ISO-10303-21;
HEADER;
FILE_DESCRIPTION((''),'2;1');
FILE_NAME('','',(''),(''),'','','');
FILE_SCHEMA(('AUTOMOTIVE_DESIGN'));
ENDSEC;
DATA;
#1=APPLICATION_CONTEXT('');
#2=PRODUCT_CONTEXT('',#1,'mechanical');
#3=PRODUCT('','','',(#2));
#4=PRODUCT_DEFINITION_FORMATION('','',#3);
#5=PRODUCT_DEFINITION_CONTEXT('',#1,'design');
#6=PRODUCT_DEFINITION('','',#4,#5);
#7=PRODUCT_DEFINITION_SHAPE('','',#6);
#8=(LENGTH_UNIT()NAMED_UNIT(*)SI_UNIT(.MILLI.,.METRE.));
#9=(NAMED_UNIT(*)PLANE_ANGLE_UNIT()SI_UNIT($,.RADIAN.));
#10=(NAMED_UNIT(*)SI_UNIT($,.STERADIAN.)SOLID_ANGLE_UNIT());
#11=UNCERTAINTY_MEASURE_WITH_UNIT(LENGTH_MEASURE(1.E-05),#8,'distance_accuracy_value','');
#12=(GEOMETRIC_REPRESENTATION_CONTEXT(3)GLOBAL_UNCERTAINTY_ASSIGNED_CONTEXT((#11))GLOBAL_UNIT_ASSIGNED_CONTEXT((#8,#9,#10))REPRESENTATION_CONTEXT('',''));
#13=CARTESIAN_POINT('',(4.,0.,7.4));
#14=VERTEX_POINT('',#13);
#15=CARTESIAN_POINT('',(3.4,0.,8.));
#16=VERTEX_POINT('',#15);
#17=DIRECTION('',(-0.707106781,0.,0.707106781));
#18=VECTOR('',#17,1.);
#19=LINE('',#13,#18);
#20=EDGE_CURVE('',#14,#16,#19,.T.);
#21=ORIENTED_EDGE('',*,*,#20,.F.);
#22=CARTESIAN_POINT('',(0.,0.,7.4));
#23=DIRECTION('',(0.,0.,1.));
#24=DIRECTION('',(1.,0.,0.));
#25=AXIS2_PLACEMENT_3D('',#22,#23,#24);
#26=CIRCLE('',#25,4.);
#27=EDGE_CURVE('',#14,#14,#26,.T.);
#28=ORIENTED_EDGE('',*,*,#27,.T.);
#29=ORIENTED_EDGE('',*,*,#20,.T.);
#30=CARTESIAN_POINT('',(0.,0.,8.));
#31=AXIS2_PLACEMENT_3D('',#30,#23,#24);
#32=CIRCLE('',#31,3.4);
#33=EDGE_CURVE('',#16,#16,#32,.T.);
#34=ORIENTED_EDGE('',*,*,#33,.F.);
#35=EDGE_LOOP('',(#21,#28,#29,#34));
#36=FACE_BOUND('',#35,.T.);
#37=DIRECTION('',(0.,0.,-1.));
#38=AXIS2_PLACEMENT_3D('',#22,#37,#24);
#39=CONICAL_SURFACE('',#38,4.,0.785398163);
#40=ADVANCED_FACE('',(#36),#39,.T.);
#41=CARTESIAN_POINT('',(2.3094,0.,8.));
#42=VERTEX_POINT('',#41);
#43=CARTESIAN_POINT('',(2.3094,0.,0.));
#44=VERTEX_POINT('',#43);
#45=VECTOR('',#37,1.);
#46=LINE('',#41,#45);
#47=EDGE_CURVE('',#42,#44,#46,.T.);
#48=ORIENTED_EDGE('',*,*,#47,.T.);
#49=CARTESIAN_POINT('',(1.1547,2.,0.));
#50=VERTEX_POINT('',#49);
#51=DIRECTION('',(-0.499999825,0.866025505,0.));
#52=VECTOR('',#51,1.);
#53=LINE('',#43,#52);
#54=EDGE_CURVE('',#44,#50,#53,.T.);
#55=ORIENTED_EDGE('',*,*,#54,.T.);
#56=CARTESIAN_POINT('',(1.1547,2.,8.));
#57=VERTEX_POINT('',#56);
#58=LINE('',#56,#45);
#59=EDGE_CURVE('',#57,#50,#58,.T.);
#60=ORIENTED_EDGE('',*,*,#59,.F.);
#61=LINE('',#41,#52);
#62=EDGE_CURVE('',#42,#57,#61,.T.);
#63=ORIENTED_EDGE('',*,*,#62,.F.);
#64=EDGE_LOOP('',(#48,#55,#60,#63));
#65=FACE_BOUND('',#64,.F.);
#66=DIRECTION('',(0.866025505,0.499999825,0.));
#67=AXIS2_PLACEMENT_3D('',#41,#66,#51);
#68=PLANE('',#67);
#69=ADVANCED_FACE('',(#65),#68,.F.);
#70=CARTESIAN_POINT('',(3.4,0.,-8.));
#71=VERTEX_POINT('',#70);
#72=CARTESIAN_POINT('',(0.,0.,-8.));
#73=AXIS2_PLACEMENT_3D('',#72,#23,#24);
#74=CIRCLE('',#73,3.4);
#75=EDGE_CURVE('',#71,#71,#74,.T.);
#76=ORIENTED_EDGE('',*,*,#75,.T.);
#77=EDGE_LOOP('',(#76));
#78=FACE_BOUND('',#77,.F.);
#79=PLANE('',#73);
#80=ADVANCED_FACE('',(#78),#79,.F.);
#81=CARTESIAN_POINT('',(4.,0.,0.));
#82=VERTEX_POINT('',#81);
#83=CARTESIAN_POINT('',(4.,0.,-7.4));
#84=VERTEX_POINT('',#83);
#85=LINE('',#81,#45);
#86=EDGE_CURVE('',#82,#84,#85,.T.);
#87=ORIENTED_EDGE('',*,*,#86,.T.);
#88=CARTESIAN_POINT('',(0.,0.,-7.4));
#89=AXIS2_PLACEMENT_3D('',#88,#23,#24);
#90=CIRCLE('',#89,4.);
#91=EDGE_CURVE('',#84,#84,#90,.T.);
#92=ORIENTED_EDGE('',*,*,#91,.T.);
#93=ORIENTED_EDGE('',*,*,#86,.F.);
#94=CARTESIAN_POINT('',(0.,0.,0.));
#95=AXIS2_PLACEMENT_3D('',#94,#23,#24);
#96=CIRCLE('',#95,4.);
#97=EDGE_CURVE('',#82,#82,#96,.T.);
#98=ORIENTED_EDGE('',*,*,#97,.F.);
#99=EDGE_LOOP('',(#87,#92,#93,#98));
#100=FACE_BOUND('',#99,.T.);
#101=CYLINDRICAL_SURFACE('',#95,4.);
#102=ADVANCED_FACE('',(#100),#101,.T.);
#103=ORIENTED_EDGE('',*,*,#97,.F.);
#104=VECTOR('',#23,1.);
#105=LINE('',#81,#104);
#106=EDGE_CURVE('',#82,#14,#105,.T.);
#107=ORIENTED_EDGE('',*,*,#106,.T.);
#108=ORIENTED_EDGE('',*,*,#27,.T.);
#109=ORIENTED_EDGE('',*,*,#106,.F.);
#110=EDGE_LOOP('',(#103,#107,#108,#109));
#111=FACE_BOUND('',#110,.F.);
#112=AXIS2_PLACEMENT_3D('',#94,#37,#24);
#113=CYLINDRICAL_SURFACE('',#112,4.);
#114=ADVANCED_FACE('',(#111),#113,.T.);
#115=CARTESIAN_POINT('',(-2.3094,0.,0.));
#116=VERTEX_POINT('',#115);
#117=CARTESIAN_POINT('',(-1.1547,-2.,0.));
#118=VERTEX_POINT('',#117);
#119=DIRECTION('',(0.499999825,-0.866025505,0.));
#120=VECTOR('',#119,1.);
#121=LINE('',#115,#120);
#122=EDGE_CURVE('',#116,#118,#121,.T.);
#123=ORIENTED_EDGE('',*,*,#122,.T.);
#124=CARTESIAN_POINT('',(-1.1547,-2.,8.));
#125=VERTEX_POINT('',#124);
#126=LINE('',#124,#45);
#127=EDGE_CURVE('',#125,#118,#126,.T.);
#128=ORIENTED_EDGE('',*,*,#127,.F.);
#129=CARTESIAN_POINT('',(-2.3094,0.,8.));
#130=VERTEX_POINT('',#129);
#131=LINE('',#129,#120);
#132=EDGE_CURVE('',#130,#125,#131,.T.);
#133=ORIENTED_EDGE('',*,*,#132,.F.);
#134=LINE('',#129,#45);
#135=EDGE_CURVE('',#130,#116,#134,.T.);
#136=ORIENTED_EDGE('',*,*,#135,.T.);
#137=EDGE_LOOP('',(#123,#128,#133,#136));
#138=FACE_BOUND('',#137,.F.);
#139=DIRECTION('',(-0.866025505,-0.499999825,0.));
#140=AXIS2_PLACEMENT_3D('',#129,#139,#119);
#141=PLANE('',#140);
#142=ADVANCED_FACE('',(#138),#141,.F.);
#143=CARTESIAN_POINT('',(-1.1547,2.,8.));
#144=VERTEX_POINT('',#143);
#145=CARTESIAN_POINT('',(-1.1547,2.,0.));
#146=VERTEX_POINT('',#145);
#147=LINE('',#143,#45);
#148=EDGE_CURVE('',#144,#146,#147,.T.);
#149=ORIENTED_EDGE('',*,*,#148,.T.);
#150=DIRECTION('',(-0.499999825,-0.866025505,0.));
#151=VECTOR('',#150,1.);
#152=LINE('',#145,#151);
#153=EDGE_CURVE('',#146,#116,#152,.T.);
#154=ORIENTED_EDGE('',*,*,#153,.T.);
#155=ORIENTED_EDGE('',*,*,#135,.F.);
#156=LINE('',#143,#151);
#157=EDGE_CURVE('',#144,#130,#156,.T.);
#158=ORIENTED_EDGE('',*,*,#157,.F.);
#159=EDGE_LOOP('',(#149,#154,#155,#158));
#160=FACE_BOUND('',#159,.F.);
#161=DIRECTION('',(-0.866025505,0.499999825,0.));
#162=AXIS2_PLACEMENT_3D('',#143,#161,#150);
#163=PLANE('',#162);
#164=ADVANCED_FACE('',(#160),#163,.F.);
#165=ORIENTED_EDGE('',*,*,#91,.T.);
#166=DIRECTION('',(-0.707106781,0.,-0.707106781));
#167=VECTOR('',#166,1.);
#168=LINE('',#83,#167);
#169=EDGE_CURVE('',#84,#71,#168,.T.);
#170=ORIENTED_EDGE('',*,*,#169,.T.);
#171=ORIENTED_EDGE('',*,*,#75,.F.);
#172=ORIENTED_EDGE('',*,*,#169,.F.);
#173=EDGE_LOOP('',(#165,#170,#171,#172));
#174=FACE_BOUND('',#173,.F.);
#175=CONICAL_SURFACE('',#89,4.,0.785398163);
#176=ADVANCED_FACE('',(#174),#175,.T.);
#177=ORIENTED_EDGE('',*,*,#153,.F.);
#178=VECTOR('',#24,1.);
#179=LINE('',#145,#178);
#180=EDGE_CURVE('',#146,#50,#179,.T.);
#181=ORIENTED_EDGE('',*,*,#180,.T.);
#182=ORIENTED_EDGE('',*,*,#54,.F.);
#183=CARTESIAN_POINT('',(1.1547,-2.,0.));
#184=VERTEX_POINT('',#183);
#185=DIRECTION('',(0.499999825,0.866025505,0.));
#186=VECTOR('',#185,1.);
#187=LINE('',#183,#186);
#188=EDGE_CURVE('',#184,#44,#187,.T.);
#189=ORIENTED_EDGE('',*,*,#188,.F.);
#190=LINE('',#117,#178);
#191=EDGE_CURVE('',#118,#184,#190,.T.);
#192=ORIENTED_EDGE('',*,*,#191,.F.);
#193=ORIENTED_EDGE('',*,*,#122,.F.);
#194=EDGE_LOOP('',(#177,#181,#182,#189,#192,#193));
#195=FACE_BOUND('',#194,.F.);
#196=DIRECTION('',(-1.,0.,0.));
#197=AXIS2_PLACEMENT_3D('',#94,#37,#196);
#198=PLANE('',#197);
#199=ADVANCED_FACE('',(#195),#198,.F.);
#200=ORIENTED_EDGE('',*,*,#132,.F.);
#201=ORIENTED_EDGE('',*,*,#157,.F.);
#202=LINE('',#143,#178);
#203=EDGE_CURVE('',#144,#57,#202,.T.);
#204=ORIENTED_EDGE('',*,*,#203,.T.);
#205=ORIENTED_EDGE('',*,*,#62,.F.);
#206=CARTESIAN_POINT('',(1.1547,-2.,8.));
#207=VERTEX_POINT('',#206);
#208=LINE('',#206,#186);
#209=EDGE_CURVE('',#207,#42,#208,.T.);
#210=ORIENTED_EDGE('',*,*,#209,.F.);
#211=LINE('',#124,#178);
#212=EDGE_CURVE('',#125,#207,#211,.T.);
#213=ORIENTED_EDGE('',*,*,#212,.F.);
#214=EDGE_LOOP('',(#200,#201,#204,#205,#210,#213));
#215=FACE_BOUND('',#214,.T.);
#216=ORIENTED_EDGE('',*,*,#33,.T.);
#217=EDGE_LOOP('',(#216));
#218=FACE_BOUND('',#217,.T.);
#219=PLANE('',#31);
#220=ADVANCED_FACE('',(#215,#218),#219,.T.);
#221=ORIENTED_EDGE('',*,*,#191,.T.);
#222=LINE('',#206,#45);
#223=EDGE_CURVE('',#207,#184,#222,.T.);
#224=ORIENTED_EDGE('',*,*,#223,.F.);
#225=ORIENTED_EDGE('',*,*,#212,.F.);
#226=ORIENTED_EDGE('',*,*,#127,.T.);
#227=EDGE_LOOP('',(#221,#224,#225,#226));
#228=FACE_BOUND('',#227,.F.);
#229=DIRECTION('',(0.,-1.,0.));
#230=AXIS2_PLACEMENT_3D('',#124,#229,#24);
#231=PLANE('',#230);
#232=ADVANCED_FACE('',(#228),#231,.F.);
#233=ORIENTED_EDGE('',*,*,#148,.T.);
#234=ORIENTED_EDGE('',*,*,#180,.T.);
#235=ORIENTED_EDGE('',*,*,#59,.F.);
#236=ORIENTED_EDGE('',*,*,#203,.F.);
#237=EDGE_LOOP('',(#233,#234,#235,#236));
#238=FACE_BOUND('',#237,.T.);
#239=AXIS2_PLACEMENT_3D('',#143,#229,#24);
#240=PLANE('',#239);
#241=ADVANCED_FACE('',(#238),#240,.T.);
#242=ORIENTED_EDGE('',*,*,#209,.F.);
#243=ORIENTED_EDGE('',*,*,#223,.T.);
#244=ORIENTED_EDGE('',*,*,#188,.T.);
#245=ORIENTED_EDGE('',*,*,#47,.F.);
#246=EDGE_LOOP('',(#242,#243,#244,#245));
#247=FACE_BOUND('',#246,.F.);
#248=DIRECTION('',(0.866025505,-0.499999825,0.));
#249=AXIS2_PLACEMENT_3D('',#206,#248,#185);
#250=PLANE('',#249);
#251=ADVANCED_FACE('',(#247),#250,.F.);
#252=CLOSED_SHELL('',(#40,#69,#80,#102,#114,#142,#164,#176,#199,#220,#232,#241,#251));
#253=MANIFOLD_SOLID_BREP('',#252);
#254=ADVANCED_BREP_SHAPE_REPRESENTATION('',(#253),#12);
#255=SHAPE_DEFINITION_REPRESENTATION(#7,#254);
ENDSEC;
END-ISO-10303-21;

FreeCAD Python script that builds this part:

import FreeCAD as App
import Part
import Sketcher

V = App.Vector
Q = App.Units.Quantity


def edges_at(feature, points):
    """Names of the edges that pass closest to the given points."""
    edges = feature.Shape.Edges
    near = lambda p: min(range(len(edges)), key=lambda i: edges[i].distToShape(Part.Vertex(*p))[0])
    return sorted({f"Edge{near(p) + 1}" for p in points})

doc = App.newDocument("Part")
body = doc.addObject("PartDesign::Body", "Body")

sketch1 = body.newObject("Sketcher::SketchObject", "Sketch")
sketch1.AttachmentSupport = (doc.getObject("XY_Plane"), [""])
sketch1.MapMode = "FlatFace"
sketch1.addGeometry(Part.Circle(V(0, 0, 0), V(0, 0, 1), 4), False)
sketch1.addConstraint([
    Sketcher.Constraint("Coincident", 0, 3, -1, 1),
    Sketcher.Constraint("Diameter", 0, Q("8 mm")),
])
pad1 = body.newObject("PartDesign::Pad", "Pad")
pad1.Profile = sketch1
pad1.Length = 16
pad1.Midplane = True
doc.recompute()

chamfer = body.newObject("PartDesign::Chamfer", "Chamfer")
chamfer.Base = (pad1, edges_at(pad1, [(-4, 0, -8), (-4, 0, 8)]))
chamfer.Size = 0.6

sketch2 = body.newObject("Sketcher::SketchObject", "Sketch001")
sketch2.AttachmentSupport = (doc.getObject("XY_Plane"), [""])
sketch2.MapMode = "FlatFace"
sketch2.AttachmentOffset = App.Placement(V(0, 0, 8), App.Rotation())
sketch2.addGeometry([
    Part.LineSegment(V(1.2, 2, 0), V(-1.2, 2, 0)),
    Part.LineSegment(V(-1.2, 2, 0), V(-2.3, 0, 0)),
    Part.LineSegment(V(-2.3, 0, 0), V(-1.2, -2, 0)),
    Part.LineSegment(V(-1.2, -2, 0), V(1.2, -2, 0)),
    Part.LineSegment(V(1.2, -2, 0), V(2.3, 0, 0)),
    Part.LineSegment(V(2.3, 0, 0), V(1.2, 2, 0)),
], False)
sketch2.addConstraint([
    Sketcher.Constraint("Coincident", 0, 2, 1, 1),
    Sketcher.Constraint("Coincident", 1, 2, 2, 1),
    Sketcher.Constraint("Coincident", 2, 2, 3, 1),
    Sketcher.Constraint("Coincident", 3, 2, 4, 1),
    Sketcher.Constraint("Coincident", 4, 2, 5, 1),
    Sketcher.Constraint("Coincident", 5, 2, 0, 1),
    Sketcher.Constraint("Horizontal", 0),
    Sketcher.Constraint("Horizontal", 3),
    Sketcher.Constraint("Symmetric", 0, 2, 3, 2, -1, 1),
    Sketcher.Constraint("Symmetric", 1, 2, 4, 2, -1, 1),
    Sketcher.Constraint("PointOnObject", 1, 2, -1),
    Sketcher.Constraint("Parallel", 2, 5),
    Sketcher.Constraint("Vertical", 0, 2, 2, 2),
    Sketcher.Constraint("Angle", 1, Q("-120 deg")),
    Sketcher.Constraint("DistanceY", -1, 1, 0, 2, Q("2 mm")),
    Sketcher.Constraint("DistanceX", 0, 2, 0, 1, Q("2.3094 mm")),
])
pocket1 = body.newObject("PartDesign::Pocket", "Pocket")
pocket1.Profile = sketch2
pocket1.Length = 8

doc.recompute()
